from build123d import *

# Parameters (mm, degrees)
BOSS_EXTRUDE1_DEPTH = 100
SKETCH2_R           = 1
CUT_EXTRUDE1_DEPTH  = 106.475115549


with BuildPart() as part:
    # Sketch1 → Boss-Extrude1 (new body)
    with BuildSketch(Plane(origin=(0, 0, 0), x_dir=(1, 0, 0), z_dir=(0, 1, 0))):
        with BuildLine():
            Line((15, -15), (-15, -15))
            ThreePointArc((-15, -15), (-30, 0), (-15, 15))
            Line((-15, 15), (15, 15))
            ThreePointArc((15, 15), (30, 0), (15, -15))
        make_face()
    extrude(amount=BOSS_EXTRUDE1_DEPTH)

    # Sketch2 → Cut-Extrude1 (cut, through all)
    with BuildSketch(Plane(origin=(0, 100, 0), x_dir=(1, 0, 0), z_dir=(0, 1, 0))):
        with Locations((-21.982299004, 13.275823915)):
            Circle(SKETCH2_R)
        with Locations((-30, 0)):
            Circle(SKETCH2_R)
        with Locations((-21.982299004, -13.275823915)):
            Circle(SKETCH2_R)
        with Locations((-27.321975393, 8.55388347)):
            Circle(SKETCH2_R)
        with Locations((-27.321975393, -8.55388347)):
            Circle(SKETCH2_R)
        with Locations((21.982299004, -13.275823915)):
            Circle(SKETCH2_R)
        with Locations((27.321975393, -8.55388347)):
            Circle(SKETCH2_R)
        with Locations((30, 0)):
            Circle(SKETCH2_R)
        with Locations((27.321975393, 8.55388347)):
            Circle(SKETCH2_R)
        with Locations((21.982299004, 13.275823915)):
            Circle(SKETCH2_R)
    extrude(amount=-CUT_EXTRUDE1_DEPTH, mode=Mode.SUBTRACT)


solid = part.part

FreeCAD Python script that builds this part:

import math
import FreeCAD as App
import Part
import Sketcher
Q = App.Units.Quantity

doc = App.newDocument("Part")
params = doc.addObject("Spreadsheet::Sheet", "Params")
for row, (alias, value) in enumerate([
    ("sketch1_radius", "15 mm"),
    ("sketch1_width", "30 mm"),
    ("pad1_length", "100 mm"),
    ("sketch2_diameter", "2 mm"),
], start=1):
    params.set(f"A{row}", alias)
    params.set(f"B{row}", "=" + value)
    params.setAlias(f"B{row}", alias)

body = doc.addObject("PartDesign::Body", "Body")

sketch1 = doc.addObject("Sketcher::SketchObject", "Sketch")
body.addObject(sketch1)
sketch1.AttachmentSupport = (doc.XZ_Plane, [""])
sketch1.MapMode = "FlatFace"
sketch1.addGeometry(Part.LineSegment(App.Vector(-15, 15, 0), App.Vector(15, 15, 0)), False)
sketch1.addGeometry(Part.ArcOfCircle(Part.Circle(App.Vector(15, 0, 0), App.Vector(0, 0, 1), 15), math.radians(-90), math.radians(90)), False)
sketch1.addGeometry(Part.LineSegment(App.Vector(15, -15, 0), App.Vector(-15, -15, 0)), False)
sketch1.addGeometry(Part.ArcOfCircle(Part.Circle(App.Vector(-15, 0, 0), App.Vector(0, 0, 1), 15), math.radians(90), math.radians(270)), False)
sketch1.addConstraint(Sketcher.Constraint("Tangent", 0, 2, 1, 2))
sketch1.addConstraint(Sketcher.Constraint("Tangent", 1, 1, 2, 1))
sketch1.addConstraint(Sketcher.Constraint("Tangent", 2, 2, 3, 2))
sketch1.addConstraint(Sketcher.Constraint("Tangent", 3, 1, 0, 1))
sketch1.addConstraint(Sketcher.Constraint("Horizontal", 0))
sketch1.addConstraint(Sketcher.Constraint("Horizontal", 2))
sketch1.addConstraint(Sketcher.Constraint("Symmetric", 1, 3, 3, 3, -1, 1))
sketch1.addConstraint(Sketcher.Constraint("Radius", 1, Q("15 mm")))
sketch1.addConstraint(Sketcher.Constraint("DistanceX", 0, 1, 0, 2, Q("30 mm")))
sketch1.setExpression("Constraints[7]", "Params.sketch1_radius")
sketch1.setExpression("Constraints[8]", "Params.sketch1_width")
pad1 = doc.addObject("PartDesign::Pad", "Pad")
body.addObject(pad1)
pad1.Profile = sketch1
pad1.setExpression("Length", "Params.pad1_length")
pad1.Reversed = True

sketch2 = doc.addObject("Sketcher::SketchObject", "Sketch001")
body.addObject(sketch2)
sketch2.AttachmentSupport = (doc.XZ_Plane, [""])
sketch2.MapMode = "FlatFace"
sketch2.AttachmentOffset = App.Placement(App.Vector(0, 0, -100), App.Rotation())
sketch2.addGeometry(Part.Circle(App.Vector(-22, -13.3, 0), App.Vector(0, 0, 1), 1), False)
sketch2.addGeometry(Part.Circle(App.Vector(-30, 0, 0), App.Vector(0, 0, 1), 1), False)
sketch2.addGeometry(Part.Circle(App.Vector(-22, 13.3, 0), App.Vector(0, 0, 1), 1), False)
sketch2.addGeometry(Part.Circle(App.Vector(-27.3, -8.6, 0), App.Vector(0, 0, 1), 1), False)
sketch2.addGeometry(Part.Circle(App.Vector(-27.3, 8.6, 0), App.Vector(0, 0, 1), 1), False)
sketch2.addGeometry(Part.Circle(App.Vector(22, 13.3, 0), App.Vector(0, 0, 1), 1), False)
sketch2.addGeometry(Part.Circle(App.Vector(27.3, 8.6, 0), App.Vector(0, 0, 1), 1), False)
sketch2.addGeometry(Part.Circle(App.Vector(30, 0, 0), App.Vector(0, 0, 1), 1), False)
sketch2.addGeometry(Part.Circle(App.Vector(27.3, -8.6, 0), App.Vector(0, 0, 1), 1), False)
sketch2.addGeometry(Part.Circle(App.Vector(22, -13.3, 0), App.Vector(0, 0, 1), 1), False)
sketch2.addConstraint(Sketcher.Constraint("Equal", 0, 1))
sketch2.addConstraint(Sketcher.Constraint("Equal", 1, 2))
sketch2.addConstraint(Sketcher.Constraint("Equal", 2, 3))
sketch2.addConstraint(Sketcher.Constraint("Equal", 3, 4))
sketch2.addConstraint(Sketcher.Constraint("Equal", 4, 5))
sketch2.addConstraint(Sketcher.Constraint("Equal", 5, 6))
sketch2.addConstraint(Sketcher.Constraint("Equal", 6, 7))
sketch2.addConstraint(Sketcher.Constraint("Equal", 7, 8))
sketch2.addConstraint(Sketcher.Constraint("Equal", 8, 9))
sketch2.addConstraint(Sketcher.Constraint("Symmetric", 0, 3, 5, 3, -1, 1))
sketch2.addConstraint(Sketcher.Constraint("Symmetric", 3, 3, 6, 3, -1, 1))
sketch2.addConstraint(Sketcher.Constraint("Symmetric", 1, 3, 7, 3, -1, 1))
sketch2.addConstraint(Sketcher.Constraint("Symmetric", 4, 3, 8, 3, -1, 1))
sketch2.addConstraint(Sketcher.Constraint("Symmetric", 2, 3, 9, 3, -1, 1))
sketch2.addConstraint(Sketcher.Constraint("Symmetric", 2, 3, 5, 3, -2))
sketch2.addConstraint(Sketcher.Constraint("Symmetric", 4, 3, 6, 3, -2))
sketch2.addConstraint(Sketcher.Constraint("PointOnObject", 1, 3, -1))
sketch2.addConstraint(Sketcher.Constraint("Diameter", 0, Q("2 mm")))
sketch2.addConstraint(Sketcher.Constraint("DistanceX", 1, 3, -1, 1, Q("30 mm")))
sketch2.addConstraint(Sketcher.Constraint("DistanceX", 0, 3, -1, 1, Q("21.982299 mm")))
sketch2.addConstraint(Sketcher.Constraint("DistanceY", 0, 3, 3, 3, Q("4.72194 mm")))
sketch2.addConstraint(Sketcher.Constraint("DistanceX", 4, 3, 6, 3, Q("54.643951 mm")))
sketch2.addConstraint(Sketcher.Constraint("DistanceY", 0, 3, -1, 1, Q("13.275824 mm")))
sketch2.setExpression("Constraints[17]", "Params.sketch2_diameter")
pocket1 = doc.addObject("PartDesign::Pocket", "Pocket")
body.addObject(pocket1)
pocket1.Profile = sketch2
pocket1.Type = "ThroughAll"
pocket1.Reversed = True

doc.recompute()
